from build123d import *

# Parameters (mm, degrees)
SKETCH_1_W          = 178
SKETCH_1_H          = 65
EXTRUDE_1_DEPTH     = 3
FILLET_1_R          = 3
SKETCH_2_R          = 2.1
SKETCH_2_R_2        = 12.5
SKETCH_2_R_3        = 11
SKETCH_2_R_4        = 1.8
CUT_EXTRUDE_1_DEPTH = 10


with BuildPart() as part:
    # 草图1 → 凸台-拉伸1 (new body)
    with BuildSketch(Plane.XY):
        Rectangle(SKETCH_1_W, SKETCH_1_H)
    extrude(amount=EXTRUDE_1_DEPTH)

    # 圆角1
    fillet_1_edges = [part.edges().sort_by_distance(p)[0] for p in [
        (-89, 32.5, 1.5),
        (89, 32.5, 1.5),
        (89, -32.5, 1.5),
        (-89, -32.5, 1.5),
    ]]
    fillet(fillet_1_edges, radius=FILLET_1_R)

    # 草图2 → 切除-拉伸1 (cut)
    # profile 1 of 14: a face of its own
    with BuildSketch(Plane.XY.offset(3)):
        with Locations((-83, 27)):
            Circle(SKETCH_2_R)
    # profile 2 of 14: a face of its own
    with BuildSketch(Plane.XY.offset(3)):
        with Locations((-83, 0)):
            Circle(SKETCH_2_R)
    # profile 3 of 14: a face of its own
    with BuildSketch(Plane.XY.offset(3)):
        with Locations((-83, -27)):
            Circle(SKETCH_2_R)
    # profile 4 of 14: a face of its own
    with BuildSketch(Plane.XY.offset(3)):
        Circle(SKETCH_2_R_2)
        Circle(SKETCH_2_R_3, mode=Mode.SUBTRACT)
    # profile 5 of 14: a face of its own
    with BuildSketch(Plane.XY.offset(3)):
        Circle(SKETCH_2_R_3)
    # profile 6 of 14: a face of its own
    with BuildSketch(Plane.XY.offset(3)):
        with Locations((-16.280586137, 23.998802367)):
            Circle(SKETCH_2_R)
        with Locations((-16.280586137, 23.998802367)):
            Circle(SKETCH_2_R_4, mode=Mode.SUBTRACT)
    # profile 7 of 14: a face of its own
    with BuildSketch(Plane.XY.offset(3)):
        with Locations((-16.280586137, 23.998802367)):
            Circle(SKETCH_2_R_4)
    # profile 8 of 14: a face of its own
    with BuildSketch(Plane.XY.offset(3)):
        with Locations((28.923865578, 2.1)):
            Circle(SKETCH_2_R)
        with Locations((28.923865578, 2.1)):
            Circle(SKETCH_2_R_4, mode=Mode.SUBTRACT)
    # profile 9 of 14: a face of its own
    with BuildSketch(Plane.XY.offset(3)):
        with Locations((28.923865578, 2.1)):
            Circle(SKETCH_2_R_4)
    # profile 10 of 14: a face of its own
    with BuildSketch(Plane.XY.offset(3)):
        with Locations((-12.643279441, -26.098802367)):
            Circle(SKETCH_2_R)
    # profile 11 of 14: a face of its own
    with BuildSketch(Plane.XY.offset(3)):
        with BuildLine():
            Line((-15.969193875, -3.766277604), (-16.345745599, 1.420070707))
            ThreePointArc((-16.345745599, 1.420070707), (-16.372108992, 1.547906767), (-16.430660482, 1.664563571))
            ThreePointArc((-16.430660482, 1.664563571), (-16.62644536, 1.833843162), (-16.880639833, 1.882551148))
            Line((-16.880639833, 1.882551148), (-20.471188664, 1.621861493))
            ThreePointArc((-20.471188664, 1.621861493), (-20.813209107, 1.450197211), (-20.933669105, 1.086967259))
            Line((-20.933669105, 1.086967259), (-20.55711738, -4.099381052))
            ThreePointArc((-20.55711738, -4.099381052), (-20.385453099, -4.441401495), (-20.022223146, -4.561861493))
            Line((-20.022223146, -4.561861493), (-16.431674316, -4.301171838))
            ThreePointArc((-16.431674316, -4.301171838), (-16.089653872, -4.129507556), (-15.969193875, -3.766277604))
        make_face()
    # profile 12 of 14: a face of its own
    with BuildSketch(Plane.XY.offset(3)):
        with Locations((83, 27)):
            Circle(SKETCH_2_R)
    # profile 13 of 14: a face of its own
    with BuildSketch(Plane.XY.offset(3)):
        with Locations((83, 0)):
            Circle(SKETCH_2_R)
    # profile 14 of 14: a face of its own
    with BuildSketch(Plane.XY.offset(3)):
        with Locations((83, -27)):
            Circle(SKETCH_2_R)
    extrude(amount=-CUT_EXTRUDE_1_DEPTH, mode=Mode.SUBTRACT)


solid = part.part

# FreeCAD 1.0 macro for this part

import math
import FreeCAD as App
import Part
import Sketcher
from FreeCAD import Vector
Q = App.Units.Quantity


def edges_at(feature, points):
    """Names of the edges that pass closest to the given points."""
    edges = feature.Shape.Edges
    near = lambda p: min(range(len(edges)), key=lambda i: edges[i].distToShape(Part.Vertex(*p))[0])
    return sorted({f"Edge{near(p) + 1}" for p in points})

doc = App.newDocument("Part")
body = doc.addObject("PartDesign::Body", "Body")

sketch1 = doc.addObject("Sketcher::SketchObject", "Sketch")
body.addObject(sketch1)
sketch1.AttachmentSupport = (doc.XY_Plane, [""])
sketch1.MapMode = "FlatFace"
sketch1.addGeometry([
    Part.LineSegment(Vector(-89, 32, 0), Vector(-89, -32, 0)),
    Part.LineSegment(Vector(-89, -32, 0), Vector(89, -32, 0)),
    Part.LineSegment(Vector(89, -32, 0), Vector(89, 32, 0)),
    Part.LineSegment(Vector(89, 32, 0), Vector(-89, 32, 0)),
], False)
sketch1.addConstraint([
    Sketcher.Constraint("Coincident", 0, 2, 1, 1),
    Sketcher.Constraint("Coincident", 1, 2, 2, 1),
    Sketcher.Constraint("Coincident", 2, 2, 3, 1),
    Sketcher.Constraint("Coincident", 3, 2, 0, 1),
    Sketcher.Constraint("Vertical", 0),
    Sketcher.Constraint("Horizontal", 1),
    Sketcher.Constraint("Vertical", 2),
    Sketcher.Constraint("Horizontal", 3),
    Sketcher.Constraint("Symmetric", 0, 2, 2, 2, -1, 1),
    Sketcher.Constraint("DistanceX", 1, 1, 1, 2, Q("178 mm")),
    Sketcher.Constraint("DistanceY", 0, 2, 0, 1, Q("65 mm")),
])
pad1 = doc.addObject("PartDesign::Pad", "Pad")
body.addObject(pad1)
pad1.Profile = sketch1
pad1.Length = 3
doc.recompute()

fillet = doc.addObject("PartDesign::Fillet", "Fillet")
body.addObject(fillet)
fillet.Base = (pad1, edges_at(pad1, [
    (-89, 32.5, 1.5),
    (89, 32.5, 1.5),
    (89, -32.5, 1.5),
    (-89, -32.5, 1.5),
]))
fillet.Radius = 3

sketch2 = doc.addObject("Sketcher::SketchObject", "Sketch001")
body.addObject(sketch2)
sketch2.AttachmentSupport = (doc.XY_Plane, [""])
sketch2.MapMode = "FlatFace"
sketch2.AttachmentOffset = App.Placement(Vector(0, 0, 3), App.Rotation())
sketch2.addGeometry([
    Part.Circle(Vector(-83, 27, 0), Vector(0, 0, 1), 2.1),
    Part.Circle(Vector(-83, 0, 0), Vector(0, 0, 1), 2.1),
    Part.Circle(Vector(-83, -27, 0), Vector(0, 0, 1), 2.1),
    Part.Circle(Vector(0, 0, 0), Vector(0, 0, 1), 12.5),
    Part.Circle(Vector(-16.28, 24, 0), Vector(0, 0, 1), 2.1),
    Part.Circle(Vector(28.92, 2.1, 0), Vector(0, 0, 1), 2.1),
    Part.Circle(Vector(-12.64, -26.1, 0), Vector(0, 0, 1), 2.1),
    Part.LineSegment(Vector(-15.97, -3.77, 0), Vector(-16.35, 1.42, 0)),
    Part.ArcOfCircle(Part.Circle(Vector(-16.84, 1.38, 0), Vector(0, 0, 1), 0.5), math.radians(4), math.radians(34)),
    Part.ArcOfCircle(Part.Circle(Vector(-16.84, 1.38, 0), Vector(0, 0, 1), 0.5), math.radians(34), math.radians(94)),
    Part.LineSegment(Vector(-16.88, 1.88, 0), Vector(-20.47, 1.62, 0)),
    Part.ArcOfCircle(Part.Circle(Vector(-20.43, 1.12, 0), Vector(0, 0, 1), 0.5), math.radians(94), math.radians(184)),
    Part.LineSegment(Vector(-20.93, 1.09, 0), Vector(-20.56, -4.1, 0)),
    Part.ArcOfCircle(Part.Circle(Vector(-20.06, -4.06, 0), Vector(0, 0, 1), 0.5), math.radians(-176), math.radians(-86)),
    Part.LineSegment(Vector(-20.02, -4.56, 0), Vector(-16.43, -4.3, 0)),
    Part.ArcOfCircle(Part.Circle(Vector(-16.47, -3.8, 0), Vector(0, 0, 1), 0.5), math.radians(-86), math.radians(4)),
    Part.Circle(Vector(83, 27, 0), Vector(0, 0, 1), 2.1),
    Part.Circle(Vector(83, 0, 0), Vector(0, 0, 1), 2.1),
    Part.Circle(Vector(83, -27, 0), Vector(0, 0, 1), 2.1),
], False)
sketch2.addConstraint([
    Sketcher.Constraint("Tangent", 7, 2, 8, 1),
    Sketcher.Constraint("Tangent", 8, 2, 9, 1),
    Sketcher.Constraint("Tangent", 9, 2, 10, 1),
    Sketcher.Constraint("Tangent", 10, 2, 11, 1),
    Sketcher.Constraint("Tangent", 11, 2, 12, 1),
    Sketcher.Constraint("Tangent", 12, 2, 13, 1),
    Sketcher.Constraint("Tangent", 13, 2, 14, 1),
    Sketcher.Constraint("Tangent", 14, 2, 15, 1),
    Sketcher.Constraint("Tangent", 15, 2, 7, 1),
    Sketcher.Constraint("Coincident", 3, 3, -1, 1),
    Sketcher.Constraint("Equal", 0, 1),
    Sketcher.Constraint("Equal", 1, 2),
    Sketcher.Constraint("Equal", 2, 4),
    Sketcher.Constraint("Equal", 4, 5),
    Sketcher.Constraint("Equal", 5, 6),
    Sketcher.Constraint("Equal", 8, 9),
    Sketcher.Constraint("Equal", 9, 11),
    Sketcher.Constraint("Equal", 11, 13),
    Sketcher.Constraint("Equal", 13, 15),
    Sketcher.Constraint("Equal", 6, 16),
    Sketcher.Constraint("Equal", 16, 17),
    Sketcher.Constraint("Equal", 17, 18),
    Sketcher.Constraint("Symmetric", 2, 3, 16, 3, -1, 1),
    Sketcher.Constraint("Symmetric", 1, 3, 17, 3, -1, 1),
    Sketcher.Constraint("Symmetric", 0, 3, 18, 3, -1, 1),
    Sketcher.Constraint("Symmetric", 0, 3, 16, 3, -2),
    Sketcher.Constraint("PointOnObject", 1, 3, -1),
    Sketcher.Constraint("Perpendicular", 7, 10),
    Sketcher.Constraint("Perpendicular", 10, 12),
    Sketcher.Constraint("Perpendicular", 12, 14),
    Sketcher.Constraint("Vertical", 0, 3, 1, 3),
    Sketcher.Constraint("Diameter", 3, Q("25 mm")),
    Sketcher.Constraint("Diameter", 0, Q("4.2 mm")),
    Sketcher.Constraint("Radius", 8, Q("0.5 mm")),
    Sketcher.Constraint("DistanceX", 0, 3, -1, 1, Q("83 mm")),
    Sketcher.Constraint("DistanceY", -1, 1, 0, 3, Q("27 mm")),
    Sketcher.Constraint("Distance", 7, Q("5.2 mm")),
    Sketcher.Constraint("Distance", 10, Q("3.6 mm")),
    Sketcher.Constraint("DistanceY", -1, 1, 5, 3, Q("2.1 mm")),
    Sketcher.Constraint("DistanceX", 8, 3, 5, 3, Q("45.768299 mm")),
    Sketcher.Constraint("DistanceX", 11, 3, 15, 3, Q("3.967101 mm")),
    Sketcher.Constraint("DistanceY", 8, 3, 8, 2, Q("0.2807 mm")),
    Sketcher.Constraint("DistanceX", 6, 3, -1, 1, Q("12.643279 mm")),
    Sketcher.Constraint("DistanceX", 11, 3, -1, 1, Q("20.434982 mm")),
    Sketcher.Constraint("DistanceY", -1, 1, 7, 2, Q("1.420071 mm")),
    Sketcher.Constraint("DistanceX", 4, 3, 5, 3, Q("45.204452 mm")),
    Sketcher.Constraint("DistanceY", 8, 3, 4, 3, Q("22.614939 mm")),
    Sketcher.Constraint("DistanceY", 6, 3, 13, 3, Q("22.035628 mm")),
])
pocket1 = doc.addObject("PartDesign::Pocket", "Pocket")
body.addObject(pocket1)
pocket1.Profile = sketch2
pocket1.Length = 10

doc.recompute()
